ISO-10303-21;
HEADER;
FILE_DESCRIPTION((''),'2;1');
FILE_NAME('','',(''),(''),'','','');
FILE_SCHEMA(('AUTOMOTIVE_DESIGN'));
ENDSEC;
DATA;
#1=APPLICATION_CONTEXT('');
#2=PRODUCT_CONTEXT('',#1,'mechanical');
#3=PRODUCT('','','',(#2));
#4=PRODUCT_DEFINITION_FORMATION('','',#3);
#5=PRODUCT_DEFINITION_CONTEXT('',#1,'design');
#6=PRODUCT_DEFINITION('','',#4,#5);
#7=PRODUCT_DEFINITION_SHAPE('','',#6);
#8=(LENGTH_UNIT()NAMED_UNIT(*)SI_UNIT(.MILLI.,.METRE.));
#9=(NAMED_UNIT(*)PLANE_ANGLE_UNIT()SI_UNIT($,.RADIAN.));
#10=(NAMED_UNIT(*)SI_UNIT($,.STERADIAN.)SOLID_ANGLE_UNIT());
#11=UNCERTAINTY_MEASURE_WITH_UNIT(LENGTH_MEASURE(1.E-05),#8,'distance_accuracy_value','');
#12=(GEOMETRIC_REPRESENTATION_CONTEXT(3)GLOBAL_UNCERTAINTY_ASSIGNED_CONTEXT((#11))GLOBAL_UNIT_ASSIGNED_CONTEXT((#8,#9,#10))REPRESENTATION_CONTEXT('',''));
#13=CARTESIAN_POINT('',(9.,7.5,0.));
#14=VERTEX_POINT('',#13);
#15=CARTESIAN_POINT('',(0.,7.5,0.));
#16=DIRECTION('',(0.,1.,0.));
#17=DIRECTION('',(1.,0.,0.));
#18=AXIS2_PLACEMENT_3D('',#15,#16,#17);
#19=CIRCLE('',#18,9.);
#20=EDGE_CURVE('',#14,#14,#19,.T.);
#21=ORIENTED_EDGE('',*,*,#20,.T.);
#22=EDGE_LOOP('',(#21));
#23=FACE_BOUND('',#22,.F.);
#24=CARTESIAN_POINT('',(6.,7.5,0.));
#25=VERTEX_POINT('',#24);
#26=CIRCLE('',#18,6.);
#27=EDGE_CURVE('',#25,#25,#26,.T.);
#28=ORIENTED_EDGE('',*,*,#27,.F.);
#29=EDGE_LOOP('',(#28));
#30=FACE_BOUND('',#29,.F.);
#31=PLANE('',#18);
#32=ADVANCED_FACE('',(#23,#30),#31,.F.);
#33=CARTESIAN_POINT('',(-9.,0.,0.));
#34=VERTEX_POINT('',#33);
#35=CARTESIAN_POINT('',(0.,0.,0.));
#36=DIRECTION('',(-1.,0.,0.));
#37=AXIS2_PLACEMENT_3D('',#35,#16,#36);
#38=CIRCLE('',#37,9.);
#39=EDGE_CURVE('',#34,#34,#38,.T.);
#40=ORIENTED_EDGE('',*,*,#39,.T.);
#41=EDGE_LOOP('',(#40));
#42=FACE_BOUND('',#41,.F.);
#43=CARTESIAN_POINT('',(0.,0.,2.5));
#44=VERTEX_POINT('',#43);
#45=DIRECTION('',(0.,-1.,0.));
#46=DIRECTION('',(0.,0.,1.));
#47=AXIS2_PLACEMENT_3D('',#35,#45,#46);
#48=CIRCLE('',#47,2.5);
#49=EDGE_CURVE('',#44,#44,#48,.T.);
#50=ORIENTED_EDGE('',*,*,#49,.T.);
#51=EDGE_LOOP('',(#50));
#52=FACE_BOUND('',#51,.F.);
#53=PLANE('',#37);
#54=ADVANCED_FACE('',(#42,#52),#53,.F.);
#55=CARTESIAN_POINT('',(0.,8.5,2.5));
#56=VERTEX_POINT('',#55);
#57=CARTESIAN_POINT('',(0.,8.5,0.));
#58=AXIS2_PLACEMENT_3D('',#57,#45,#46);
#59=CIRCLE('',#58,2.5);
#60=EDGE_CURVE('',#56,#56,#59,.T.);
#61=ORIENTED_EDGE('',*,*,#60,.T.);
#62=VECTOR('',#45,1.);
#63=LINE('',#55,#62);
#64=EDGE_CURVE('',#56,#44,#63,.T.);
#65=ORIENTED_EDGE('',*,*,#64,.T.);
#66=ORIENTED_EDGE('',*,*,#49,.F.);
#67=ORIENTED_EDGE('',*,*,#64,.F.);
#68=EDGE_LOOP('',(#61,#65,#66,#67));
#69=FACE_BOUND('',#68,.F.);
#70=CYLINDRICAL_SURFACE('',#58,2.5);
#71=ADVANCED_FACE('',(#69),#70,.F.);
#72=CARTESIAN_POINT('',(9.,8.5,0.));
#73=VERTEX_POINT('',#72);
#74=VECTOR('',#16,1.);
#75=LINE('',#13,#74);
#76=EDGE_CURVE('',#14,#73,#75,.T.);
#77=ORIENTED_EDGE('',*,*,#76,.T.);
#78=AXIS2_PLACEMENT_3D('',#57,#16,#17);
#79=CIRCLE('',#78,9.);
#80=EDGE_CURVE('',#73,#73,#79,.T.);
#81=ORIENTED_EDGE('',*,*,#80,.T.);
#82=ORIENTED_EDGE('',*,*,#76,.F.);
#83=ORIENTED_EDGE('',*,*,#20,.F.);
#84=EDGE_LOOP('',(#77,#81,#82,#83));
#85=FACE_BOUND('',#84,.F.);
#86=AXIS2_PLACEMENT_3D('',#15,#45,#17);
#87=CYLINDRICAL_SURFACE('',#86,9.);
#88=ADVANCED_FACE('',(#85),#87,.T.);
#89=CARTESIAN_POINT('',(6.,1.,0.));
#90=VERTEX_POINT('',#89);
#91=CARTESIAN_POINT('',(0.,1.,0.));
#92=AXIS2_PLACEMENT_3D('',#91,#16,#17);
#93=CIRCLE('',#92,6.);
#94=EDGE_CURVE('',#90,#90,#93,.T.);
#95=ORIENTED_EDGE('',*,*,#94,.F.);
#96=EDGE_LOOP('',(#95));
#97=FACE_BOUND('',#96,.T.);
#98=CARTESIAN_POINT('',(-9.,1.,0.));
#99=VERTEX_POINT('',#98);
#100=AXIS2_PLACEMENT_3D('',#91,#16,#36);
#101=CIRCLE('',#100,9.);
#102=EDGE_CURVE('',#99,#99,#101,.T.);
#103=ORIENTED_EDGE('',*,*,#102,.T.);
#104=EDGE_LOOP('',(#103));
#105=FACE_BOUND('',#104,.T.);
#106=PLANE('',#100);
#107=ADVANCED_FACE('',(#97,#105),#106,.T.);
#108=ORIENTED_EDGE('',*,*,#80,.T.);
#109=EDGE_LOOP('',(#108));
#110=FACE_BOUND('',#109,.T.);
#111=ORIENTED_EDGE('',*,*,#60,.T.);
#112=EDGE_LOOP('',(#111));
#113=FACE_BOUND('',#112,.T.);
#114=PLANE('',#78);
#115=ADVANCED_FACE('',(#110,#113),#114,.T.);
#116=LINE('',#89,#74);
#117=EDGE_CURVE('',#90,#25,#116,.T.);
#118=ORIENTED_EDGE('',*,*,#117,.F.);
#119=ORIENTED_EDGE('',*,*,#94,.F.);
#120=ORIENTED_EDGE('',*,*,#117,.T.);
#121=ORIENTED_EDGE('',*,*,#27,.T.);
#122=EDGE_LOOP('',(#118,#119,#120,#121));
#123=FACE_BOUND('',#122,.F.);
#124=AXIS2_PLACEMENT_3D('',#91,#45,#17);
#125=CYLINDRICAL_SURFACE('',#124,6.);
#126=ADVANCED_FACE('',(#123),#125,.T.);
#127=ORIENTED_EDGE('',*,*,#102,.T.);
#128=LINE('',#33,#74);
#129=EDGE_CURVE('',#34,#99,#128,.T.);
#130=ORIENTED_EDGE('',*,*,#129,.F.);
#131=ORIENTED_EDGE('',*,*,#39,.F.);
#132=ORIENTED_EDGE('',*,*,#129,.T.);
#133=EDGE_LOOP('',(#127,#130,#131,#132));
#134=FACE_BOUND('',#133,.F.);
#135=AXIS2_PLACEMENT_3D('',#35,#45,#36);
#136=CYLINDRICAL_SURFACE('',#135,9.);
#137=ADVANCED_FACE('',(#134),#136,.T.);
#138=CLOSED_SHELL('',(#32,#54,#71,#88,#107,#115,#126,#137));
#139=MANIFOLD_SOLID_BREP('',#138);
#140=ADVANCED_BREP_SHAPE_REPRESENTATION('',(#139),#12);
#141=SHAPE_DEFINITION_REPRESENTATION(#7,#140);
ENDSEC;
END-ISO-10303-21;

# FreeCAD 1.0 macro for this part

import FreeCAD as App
import Part
import Sketcher
from FreeCAD import Vector
Q = App.Units.Quantity

doc = App.newDocument("Part")
body = doc.addObject("PartDesign::Body", "Body")

# Sketch on XZ plane
sketch1 = body.newObject("Sketcher::SketchObject", "Sketch")
sketch1.AttachmentSupport = (doc.getObject("XZ_Plane"), [""])
sketch1.MapMode = "FlatFace"
sketch1.addGeometry(Part.Circle(Vector(0, 0, 0), Vector(0, 0, 1), 9), False)
sketch1.addConstraint([
    Sketcher.Constraint("Coincident", 0, 3, -1, 1),
    Sketcher.Constraint("Diameter", 0, Q("18 mm")),
])
pad1 = body.newObject("PartDesign::Pad", "Pad")
pad1.Profile = sketch1
pad1.Length = 1
pad1.Reversed = True

# Sketch on XZ plane
sketch2 = body.newObject("Sketcher::SketchObject", "Sketch001")
sketch2.AttachmentSupport = (doc.getObject("XZ_Plane"), [""])
sketch2.MapMode = "FlatFace"
sketch2.AttachmentOffset = App.Placement(Vector(0, 0, -1), App.Rotation())
sketch2.addGeometry(Part.Circle(Vector(0, 0, 0), Vector(0, 0, 1), 6), False)
sketch2.addConstraint([
    Sketcher.Constraint("Coincident", 0, 3, -1, 1),
    Sketcher.Constraint("Diameter", 0, Q("12 mm")),
])
pad2 = body.newObject("PartDesign::Pad", "Pad001")
pad2.Profile = sketch2
pad2.Length = 6.5
pad2.Reversed = True

# Sketch on XZ plane
sketch3 = body.newObject("Sketcher::SketchObject", "Sketch002")
sketch3.AttachmentSupport = (doc.getObject("XZ_Plane"), [""])
sketch3.MapMode = "FlatFace"
sketch3.AttachmentOffset = App.Placement(Vector(0, 0, -7.5), App.Rotation())
sketch3.addGeometry(Part.Circle(Vector(0, 0, 0), Vector(0, 0, 1), 9), False)
sketch3.addConstraint([
    Sketcher.Constraint("Coincident", 0, 3, -1, 1),
    Sketcher.Constraint("Diameter", 0, Q("18 mm")),
])
pad3 = body.newObject("PartDesign::Pad", "Pad002")
pad3.Profile = sketch3
pad3.Length = 1
pad3.Reversed = True

# Sketch on XZ plane
sketch4 = body.newObject("Sketcher::SketchObject", "Sketch003")
sketch4.AttachmentSupport = (doc.getObject("XZ_Plane"), [""])
sketch4.MapMode = "FlatFace"
sketch4.AttachmentOffset = App.Placement(Vector(0, 0, -8.5), App.Rotation())
sketch4.addGeometry(Part.Circle(Vector(0, 0, 0), Vector(0, 0, 1), 2.5), False)
sketch4.addConstraint([
    Sketcher.Constraint("Coincident", 0, 3, -1, 1),
    Sketcher.Constraint("Diameter", 0, Q("5 mm")),
])
doc.recompute()
hole = body.newObject("PartDesign::Hole", "Hole")
hole.Profile = sketch4
hole.ThreadType = "None"
hole.Diameter = 5
hole.DepthType = "ThroughAll"
hole.Reversed = True

doc.recompute()
